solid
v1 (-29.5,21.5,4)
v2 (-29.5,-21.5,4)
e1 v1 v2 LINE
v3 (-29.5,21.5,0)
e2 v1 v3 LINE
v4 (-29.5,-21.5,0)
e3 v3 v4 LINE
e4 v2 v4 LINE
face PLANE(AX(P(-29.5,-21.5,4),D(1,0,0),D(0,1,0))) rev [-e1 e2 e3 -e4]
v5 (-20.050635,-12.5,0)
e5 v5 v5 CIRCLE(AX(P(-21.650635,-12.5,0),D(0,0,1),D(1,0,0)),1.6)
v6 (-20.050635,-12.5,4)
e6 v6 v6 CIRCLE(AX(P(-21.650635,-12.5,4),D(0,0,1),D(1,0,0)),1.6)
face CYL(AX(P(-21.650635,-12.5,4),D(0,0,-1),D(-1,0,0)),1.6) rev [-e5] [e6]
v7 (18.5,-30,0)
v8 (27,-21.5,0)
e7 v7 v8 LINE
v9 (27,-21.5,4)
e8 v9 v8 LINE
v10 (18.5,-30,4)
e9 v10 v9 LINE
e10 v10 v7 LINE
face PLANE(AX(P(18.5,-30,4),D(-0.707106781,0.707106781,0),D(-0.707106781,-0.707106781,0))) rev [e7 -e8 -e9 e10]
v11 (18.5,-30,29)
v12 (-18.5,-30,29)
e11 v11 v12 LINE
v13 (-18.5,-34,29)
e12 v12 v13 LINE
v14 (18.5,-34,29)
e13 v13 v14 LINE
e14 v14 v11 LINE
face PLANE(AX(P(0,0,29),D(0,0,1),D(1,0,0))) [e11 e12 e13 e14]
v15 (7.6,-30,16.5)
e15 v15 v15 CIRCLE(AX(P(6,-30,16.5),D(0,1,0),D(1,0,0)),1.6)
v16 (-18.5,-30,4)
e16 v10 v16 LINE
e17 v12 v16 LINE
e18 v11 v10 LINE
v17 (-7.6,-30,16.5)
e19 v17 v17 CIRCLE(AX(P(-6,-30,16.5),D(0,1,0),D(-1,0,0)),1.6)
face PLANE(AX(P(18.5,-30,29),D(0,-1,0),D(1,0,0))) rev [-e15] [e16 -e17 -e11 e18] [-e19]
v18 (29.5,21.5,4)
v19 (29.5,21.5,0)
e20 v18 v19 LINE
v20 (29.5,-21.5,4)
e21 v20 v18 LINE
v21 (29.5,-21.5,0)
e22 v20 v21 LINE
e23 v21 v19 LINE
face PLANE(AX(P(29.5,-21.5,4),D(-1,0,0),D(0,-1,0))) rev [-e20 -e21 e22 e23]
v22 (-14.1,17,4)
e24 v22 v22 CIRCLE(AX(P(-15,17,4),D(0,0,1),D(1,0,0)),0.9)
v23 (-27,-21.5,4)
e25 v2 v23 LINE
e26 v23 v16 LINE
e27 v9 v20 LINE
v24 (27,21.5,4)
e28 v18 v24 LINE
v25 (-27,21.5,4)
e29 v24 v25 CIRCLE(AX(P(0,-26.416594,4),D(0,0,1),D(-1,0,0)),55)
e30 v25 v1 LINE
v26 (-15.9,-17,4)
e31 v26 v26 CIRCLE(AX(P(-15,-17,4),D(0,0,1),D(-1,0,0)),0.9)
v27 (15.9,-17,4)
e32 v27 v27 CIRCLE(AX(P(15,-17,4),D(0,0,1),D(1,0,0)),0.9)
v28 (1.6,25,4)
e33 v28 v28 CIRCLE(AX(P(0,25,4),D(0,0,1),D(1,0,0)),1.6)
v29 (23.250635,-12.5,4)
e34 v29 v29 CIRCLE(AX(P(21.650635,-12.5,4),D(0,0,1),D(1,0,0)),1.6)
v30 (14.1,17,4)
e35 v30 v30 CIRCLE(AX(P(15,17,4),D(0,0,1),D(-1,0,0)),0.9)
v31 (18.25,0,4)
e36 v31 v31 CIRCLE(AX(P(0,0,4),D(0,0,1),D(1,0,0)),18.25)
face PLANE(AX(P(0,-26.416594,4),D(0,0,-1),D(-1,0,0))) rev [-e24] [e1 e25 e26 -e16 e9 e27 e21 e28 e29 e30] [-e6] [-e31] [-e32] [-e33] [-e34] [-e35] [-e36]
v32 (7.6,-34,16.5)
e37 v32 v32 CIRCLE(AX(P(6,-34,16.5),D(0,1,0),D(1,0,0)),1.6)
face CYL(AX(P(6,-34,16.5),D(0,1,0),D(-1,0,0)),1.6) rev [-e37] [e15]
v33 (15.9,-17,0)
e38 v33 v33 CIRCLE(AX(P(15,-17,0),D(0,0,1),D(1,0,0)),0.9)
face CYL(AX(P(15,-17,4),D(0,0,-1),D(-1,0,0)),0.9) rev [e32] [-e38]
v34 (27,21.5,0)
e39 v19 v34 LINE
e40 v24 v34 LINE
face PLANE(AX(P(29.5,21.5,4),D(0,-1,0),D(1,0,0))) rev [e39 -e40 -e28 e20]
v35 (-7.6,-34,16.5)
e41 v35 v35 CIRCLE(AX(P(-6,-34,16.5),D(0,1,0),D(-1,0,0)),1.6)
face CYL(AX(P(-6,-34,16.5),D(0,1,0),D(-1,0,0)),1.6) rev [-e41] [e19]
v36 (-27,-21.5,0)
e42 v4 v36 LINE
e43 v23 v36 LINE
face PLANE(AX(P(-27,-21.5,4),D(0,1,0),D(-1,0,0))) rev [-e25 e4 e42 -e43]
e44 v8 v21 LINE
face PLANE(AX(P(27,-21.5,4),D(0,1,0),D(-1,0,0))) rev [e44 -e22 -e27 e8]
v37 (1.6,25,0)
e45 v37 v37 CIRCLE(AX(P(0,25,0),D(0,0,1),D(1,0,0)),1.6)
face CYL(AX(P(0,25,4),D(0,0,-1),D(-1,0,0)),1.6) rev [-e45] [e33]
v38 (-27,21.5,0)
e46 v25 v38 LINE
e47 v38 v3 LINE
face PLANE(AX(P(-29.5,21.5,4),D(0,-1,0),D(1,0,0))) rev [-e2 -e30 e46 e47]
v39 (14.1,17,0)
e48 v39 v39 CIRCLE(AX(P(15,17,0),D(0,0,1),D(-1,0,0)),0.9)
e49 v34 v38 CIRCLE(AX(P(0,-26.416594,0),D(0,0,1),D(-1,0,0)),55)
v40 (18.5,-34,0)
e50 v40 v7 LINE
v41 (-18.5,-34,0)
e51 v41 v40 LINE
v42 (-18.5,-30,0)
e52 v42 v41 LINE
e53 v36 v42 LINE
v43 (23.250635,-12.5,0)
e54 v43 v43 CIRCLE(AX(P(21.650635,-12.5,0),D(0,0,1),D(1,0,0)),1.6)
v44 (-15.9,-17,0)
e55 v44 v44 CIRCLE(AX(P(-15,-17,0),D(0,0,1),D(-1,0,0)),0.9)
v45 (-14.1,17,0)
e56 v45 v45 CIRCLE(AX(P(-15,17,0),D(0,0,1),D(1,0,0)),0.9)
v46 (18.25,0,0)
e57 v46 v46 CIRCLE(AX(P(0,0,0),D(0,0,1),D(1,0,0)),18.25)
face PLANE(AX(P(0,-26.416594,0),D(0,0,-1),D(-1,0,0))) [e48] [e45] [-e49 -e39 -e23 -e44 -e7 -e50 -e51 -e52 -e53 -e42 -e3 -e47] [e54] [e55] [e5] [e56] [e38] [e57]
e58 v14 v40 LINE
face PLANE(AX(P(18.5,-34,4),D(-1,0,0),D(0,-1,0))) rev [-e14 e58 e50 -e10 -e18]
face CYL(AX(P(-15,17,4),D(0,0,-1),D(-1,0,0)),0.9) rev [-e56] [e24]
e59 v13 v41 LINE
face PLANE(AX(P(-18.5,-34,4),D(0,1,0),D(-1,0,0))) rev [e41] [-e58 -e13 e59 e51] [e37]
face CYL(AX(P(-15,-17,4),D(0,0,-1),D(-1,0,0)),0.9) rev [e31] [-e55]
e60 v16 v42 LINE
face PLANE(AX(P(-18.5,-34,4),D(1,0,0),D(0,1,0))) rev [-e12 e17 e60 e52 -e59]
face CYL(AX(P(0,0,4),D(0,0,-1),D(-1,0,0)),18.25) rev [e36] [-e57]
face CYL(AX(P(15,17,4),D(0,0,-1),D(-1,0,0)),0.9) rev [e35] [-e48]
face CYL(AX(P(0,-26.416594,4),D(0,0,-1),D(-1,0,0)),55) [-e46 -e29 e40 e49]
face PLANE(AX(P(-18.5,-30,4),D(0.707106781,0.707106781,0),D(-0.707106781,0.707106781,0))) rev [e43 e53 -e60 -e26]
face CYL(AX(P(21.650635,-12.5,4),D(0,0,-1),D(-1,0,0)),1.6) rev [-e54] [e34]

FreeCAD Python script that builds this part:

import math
import FreeCAD as App
import Part
import Sketcher

V = App.Vector
Q = App.Units.Quantity


def add_polygon(sketch, points):
    """Adds a closed chain of lines whose ends are joined by coincident constraints."""
    first, n = sketch.GeometryCount, len(points)
    for a, b in zip(points, points[1:] + points[:1]):
        sketch.addGeometry(Part.LineSegment(App.Vector(*a, 0), App.Vector(*b, 0)), False)
    for i in range(n):
        sketch.addConstraint(Sketcher.Constraint("Coincident", first + i, 2, first + (i + 1) % n, 1))

doc = App.newDocument("Part")
body = doc.addObject("PartDesign::Body", "Body")

# Sketch on XY plane
sketch1 = doc.addObject("Sketcher::SketchObject", "Sketch")
body.addObject(sketch1)
sketch1.AttachmentSupport = (doc.XY_Plane, [""])
sketch1.MapMode = "FlatFace"
sketch1.addGeometry(Part.LineSegment(V(-18.5, -34, 0), V(18.5, -34, 0)), False)
sketch1.addGeometry(Part.LineSegment(V(18.5, -34, 0), V(18.5, -30, 0)), False)
sketch1.addGeometry(Part.LineSegment(V(18.5, -30, 0), V(27, -21.5, 0)), False)
sketch1.addGeometry(Part.LineSegment(V(27, -21.5, 0), V(29.5, -21.5, 0)), False)
sketch1.addGeometry(Part.LineSegment(V(29.5, -21.5, 0), V(29.5, 21.5, 0)), False)
sketch1.addGeometry(Part.LineSegment(V(29.5, 21.5, 0), V(27, 21.5, 0)), False)
sketch1.addGeometry(Part.ArcOfCircle(Part.Circle(V(0, -26.4, 0), V(0, 0, 1), 55), math.radians(61), math.radians(119)), False)
sketch1.addGeometry(Part.LineSegment(V(-27, 21.5, 0), V(-29.5, 21.5, 0)), False)
sketch1.addGeometry(Part.LineSegment(V(-29.5, 21.5, 0), V(-29.5, -21.5, 0)), False)
sketch1.addGeometry(Part.LineSegment(V(-29.5, -21.5, 0), V(-27, -21.5, 0)), False)
sketch1.addGeometry(Part.LineSegment(V(-27, -21.5, 0), V(-18.5, -30, 0)), False)
sketch1.addGeometry(Part.LineSegment(V(-18.5, -30, 0), V(-18.5, -34, 0)), False)
sketch1.addGeometry(Part.Circle(V(-15, -17, 0), V(0, 0, 1), 0.9), False)
sketch1.addGeometry(Part.Circle(V(-21.7, -12.5, 0), V(0, 0, 1), 1.6), False)
sketch1.addGeometry(Part.Circle(V(15, -17, 0), V(0, 0, 1), 0.9), False)
sketch1.addGeometry(Part.Circle(V(21.7, -12.5, 0), V(0, 0, 1), 1.6), False)
sketch1.addGeometry(Part.Circle(V(0, 0, 0), V(0, 0, 1), 18.2), False)
sketch1.addGeometry(Part.Circle(V(-15, 17, 0), V(0, 0, 1), 0.9), False)
sketch1.addGeometry(Part.Circle(V(0, 25, 0), V(0, 0, 1), 1.6), False)
sketch1.addGeometry(Part.Circle(V(15, 17, 0), V(0, 0, 1), 0.9), False)
sketch1.addConstraint(Sketcher.Constraint("Coincident", 0, 2, 1, 1))
sketch1.addConstraint(Sketcher.Constraint("Coincident", 1, 2, 2, 1))
sketch1.addConstraint(Sketcher.Constraint("Coincident", 2, 2, 3, 1))
sketch1.addConstraint(Sketcher.Constraint("Coincident", 3, 2, 4, 1))
sketch1.addConstraint(Sketcher.Constraint("Coincident", 4, 2, 5, 1))
sketch1.addConstraint(Sketcher.Constraint("Coincident", 5, 2, 6, 1))
sketch1.addConstraint(Sketcher.Constraint("Coincident", 6, 2, 7, 1))
sketch1.addConstraint(Sketcher.Constraint("Coincident", 7, 2, 8, 1))
sketch1.addConstraint(Sketcher.Constraint("Coincident", 8, 2, 9, 1))
sketch1.addConstraint(Sketcher.Constraint("Coincident", 9, 2, 10, 1))
sketch1.addConstraint(Sketcher.Constraint("Coincident", 10, 2, 11, 1))
sketch1.addConstraint(Sketcher.Constraint("Coincident", 11, 2, 0, 1))
sketch1.addConstraint(Sketcher.Constraint("Horizontal", 0))
sketch1.addConstraint(Sketcher.Constraint("Vertical", 1))
sketch1.addConstraint(Sketcher.Constraint("Horizontal", 3))
sketch1.addConstraint(Sketcher.Constraint("Vertical", 4))
sketch1.addConstraint(Sketcher.Constraint("Horizontal", 5))
sketch1.addConstraint(Sketcher.Constraint("Horizontal", 7))
sketch1.addConstraint(Sketcher.Constraint("Vertical", 8))
sketch1.addConstraint(Sketcher.Constraint("Horizontal", 9))
sketch1.addConstraint(Sketcher.Constraint("Vertical", 11))
sketch1.addConstraint(Sketcher.Constraint("Coincident", 16, 3, -1, 1))
sketch1.addConstraint(Sketcher.Constraint("Equal", 12, 14))
sketch1.addConstraint(Sketcher.Constraint("Equal", 13, 15))
sketch1.addConstraint(Sketcher.Constraint("Equal", 14, 17))
sketch1.addConstraint(Sketcher.Constraint("Equal", 15, 18))
sketch1.addConstraint(Sketcher.Constraint("Equal", 17, 19))
sketch1.addConstraint(Sketcher.Constraint("Symmetric", 14, 3, 17, 3, -1, 1))
sketch1.addConstraint(Sketcher.Constraint("Symmetric", 12, 3, 19, 3, -1, 1))
sketch1.addConstraint(Sketcher.Constraint("Symmetric", 2, 2, 6, 2, -1, 1))
sketch1.addConstraint(Sketcher.Constraint("Symmetric", 4, 2, 8, 2, -1, 1))
sketch1.addConstraint(Sketcher.Constraint("Symmetric", 12, 3, 14, 3, -2))
sketch1.addConstraint(Sketcher.Constraint("Symmetric", 13, 3, 15, 3, -2))
sketch1.addConstraint(Sketcher.Constraint("Symmetric", 5, 2, 6, 2, -2))
sketch1.addConstraint(Sketcher.Constraint("Symmetric", 1, 2, 10, 2, -2))
sketch1.addConstraint(Sketcher.Constraint("PointOnObject", 18, 3, -2))
sketch1.addConstraint(Sketcher.Constraint("Perpendicular", 2, 10))
sketch1.addConstraint(Sketcher.Constraint("Vertical", 6, 2, 9, 2))
sketch1.addConstraint(Sketcher.Constraint("Radius", 6, Q("55 mm")))
sketch1.addConstraint(Sketcher.Constraint("Diameter", 12, Q("1.8 mm")))
sketch1.addConstraint(Sketcher.Constraint("Diameter", 13, Q("3.2 mm")))
sketch1.addConstraint(Sketcher.Constraint("Diameter", 16, Q("36.5 mm")))
sketch1.addConstraint(Sketcher.Constraint("DistanceX", 0, 1, 0, 2, Q("37 mm")))
sketch1.addConstraint(Sketcher.Constraint("DistanceY", 1, 1, 1, 2, Q("4 mm")))
sketch1.addConstraint(Sketcher.Constraint("DistanceY", 4, 1, 4, 2, Q("43 mm")))
sketch1.addConstraint(Sketcher.Constraint("DistanceX", 3, 1, 3, 2, Q("2.5 mm")))
sketch1.addConstraint(Sketcher.Constraint("DistanceX", 12, 3, -1, 1, Q("15 mm")))
sketch1.addConstraint(Sketcher.Constraint("DistanceY", 12, 3, -1, 1, Q("17 mm")))
sketch1.addConstraint(Sketcher.Constraint("DistanceY", -1, 1, 18, 3, Q("25 mm")))
sketch1.addConstraint(Sketcher.Constraint("DistanceY", 0, 2, -1, 1, Q("34 mm")))
sketch1.addConstraint(Sketcher.Constraint("DistanceY", 2, 2, 15, 3, Q("9 mm")))
sketch1.addConstraint(Sketcher.Constraint("DistanceX", 13, 3, 15, 3, Q("43.30127 mm")))
pad1 = doc.addObject("PartDesign::Pad", "Pad")
body.addObject(pad1)
pad1.Profile = sketch1
pad1.Length = 4

# Sketch on XY plane
sketch2 = doc.addObject("Sketcher::SketchObject", "Sketch001")
body.addObject(sketch2)
sketch2.AttachmentSupport = (doc.XY_Plane, [""])
sketch2.MapMode = "FlatFace"
sketch2.AttachmentOffset = App.Placement(V(0, 0, 4), App.Rotation())
add_polygon(sketch2, [(-18.5, -30), (-18.5, -34), (18.5, -34), (18.5, -30)])  # lines 0-3
sketch2.addConstraint(Sketcher.Constraint("Vertical", 0))
sketch2.addConstraint(Sketcher.Constraint("Horizontal", 1))
sketch2.addConstraint(Sketcher.Constraint("Vertical", 2))
sketch2.addConstraint(Sketcher.Constraint("Horizontal", 3))
sketch2.addConstraint(Sketcher.Constraint("DistanceX", 1, 1, 1, 2, Q("37 mm")))
sketch2.addConstraint(Sketcher.Constraint("DistanceY", 0, 2, 0, 1, Q("4 mm")))
sketch2.addConstraint(Sketcher.Constraint("DistanceY", 0, 2, -1, 1, Q("34 mm")))
sketch2.addConstraint(Sketcher.Constraint("DistanceX", 0, 2, -1, 1, Q("18.5 mm")))
pad2 = doc.addObject("PartDesign::Pad", "Pad001")
body.addObject(pad2)
pad2.Profile = sketch2
pad2.Length = 25

# Sketch on XZ plane
sketch3 = doc.addObject("Sketcher::SketchObject", "Sketch002")
body.addObject(sketch3)
sketch3.AttachmentSupport = (doc.XZ_Plane, [""])
sketch3.MapMode = "FlatFace"
sketch3.AttachmentOffset = App.Placement(V(0, 0, 30), App.Rotation())
sketch3.addGeometry(Part.Circle(V(-6, 16.5, 0), V(0, 0, 1), 1.6), False)
sketch3.addGeometry(Part.Circle(V(6, 16.5, 0), V(0, 0, 1), 1.6), False)
sketch3.addConstraint(Sketcher.Constraint("Equal", 0, 1))
sketch3.addConstraint(Sketcher.Constraint("Symmetric", 0, 3, 1, 3, -2))
sketch3.addConstraint(Sketcher.Constraint("Diameter", 0, Q("3.2 mm")))
sketch3.addConstraint(Sketcher.Constraint("DistanceX", 0, 3, -1, 1, Q("6 mm")))
sketch3.addConstraint(Sketcher.Constraint("DistanceY", -1, 1, 0, 3, Q("16.5 mm")))
pocket1 = doc.addObject("PartDesign::Pocket", "Pocket")
body.addObject(pocket1)
pocket1.Profile = sketch3
pocket1.Type = "ThroughAll"
pocket1.Reversed = True

doc.recompute()
